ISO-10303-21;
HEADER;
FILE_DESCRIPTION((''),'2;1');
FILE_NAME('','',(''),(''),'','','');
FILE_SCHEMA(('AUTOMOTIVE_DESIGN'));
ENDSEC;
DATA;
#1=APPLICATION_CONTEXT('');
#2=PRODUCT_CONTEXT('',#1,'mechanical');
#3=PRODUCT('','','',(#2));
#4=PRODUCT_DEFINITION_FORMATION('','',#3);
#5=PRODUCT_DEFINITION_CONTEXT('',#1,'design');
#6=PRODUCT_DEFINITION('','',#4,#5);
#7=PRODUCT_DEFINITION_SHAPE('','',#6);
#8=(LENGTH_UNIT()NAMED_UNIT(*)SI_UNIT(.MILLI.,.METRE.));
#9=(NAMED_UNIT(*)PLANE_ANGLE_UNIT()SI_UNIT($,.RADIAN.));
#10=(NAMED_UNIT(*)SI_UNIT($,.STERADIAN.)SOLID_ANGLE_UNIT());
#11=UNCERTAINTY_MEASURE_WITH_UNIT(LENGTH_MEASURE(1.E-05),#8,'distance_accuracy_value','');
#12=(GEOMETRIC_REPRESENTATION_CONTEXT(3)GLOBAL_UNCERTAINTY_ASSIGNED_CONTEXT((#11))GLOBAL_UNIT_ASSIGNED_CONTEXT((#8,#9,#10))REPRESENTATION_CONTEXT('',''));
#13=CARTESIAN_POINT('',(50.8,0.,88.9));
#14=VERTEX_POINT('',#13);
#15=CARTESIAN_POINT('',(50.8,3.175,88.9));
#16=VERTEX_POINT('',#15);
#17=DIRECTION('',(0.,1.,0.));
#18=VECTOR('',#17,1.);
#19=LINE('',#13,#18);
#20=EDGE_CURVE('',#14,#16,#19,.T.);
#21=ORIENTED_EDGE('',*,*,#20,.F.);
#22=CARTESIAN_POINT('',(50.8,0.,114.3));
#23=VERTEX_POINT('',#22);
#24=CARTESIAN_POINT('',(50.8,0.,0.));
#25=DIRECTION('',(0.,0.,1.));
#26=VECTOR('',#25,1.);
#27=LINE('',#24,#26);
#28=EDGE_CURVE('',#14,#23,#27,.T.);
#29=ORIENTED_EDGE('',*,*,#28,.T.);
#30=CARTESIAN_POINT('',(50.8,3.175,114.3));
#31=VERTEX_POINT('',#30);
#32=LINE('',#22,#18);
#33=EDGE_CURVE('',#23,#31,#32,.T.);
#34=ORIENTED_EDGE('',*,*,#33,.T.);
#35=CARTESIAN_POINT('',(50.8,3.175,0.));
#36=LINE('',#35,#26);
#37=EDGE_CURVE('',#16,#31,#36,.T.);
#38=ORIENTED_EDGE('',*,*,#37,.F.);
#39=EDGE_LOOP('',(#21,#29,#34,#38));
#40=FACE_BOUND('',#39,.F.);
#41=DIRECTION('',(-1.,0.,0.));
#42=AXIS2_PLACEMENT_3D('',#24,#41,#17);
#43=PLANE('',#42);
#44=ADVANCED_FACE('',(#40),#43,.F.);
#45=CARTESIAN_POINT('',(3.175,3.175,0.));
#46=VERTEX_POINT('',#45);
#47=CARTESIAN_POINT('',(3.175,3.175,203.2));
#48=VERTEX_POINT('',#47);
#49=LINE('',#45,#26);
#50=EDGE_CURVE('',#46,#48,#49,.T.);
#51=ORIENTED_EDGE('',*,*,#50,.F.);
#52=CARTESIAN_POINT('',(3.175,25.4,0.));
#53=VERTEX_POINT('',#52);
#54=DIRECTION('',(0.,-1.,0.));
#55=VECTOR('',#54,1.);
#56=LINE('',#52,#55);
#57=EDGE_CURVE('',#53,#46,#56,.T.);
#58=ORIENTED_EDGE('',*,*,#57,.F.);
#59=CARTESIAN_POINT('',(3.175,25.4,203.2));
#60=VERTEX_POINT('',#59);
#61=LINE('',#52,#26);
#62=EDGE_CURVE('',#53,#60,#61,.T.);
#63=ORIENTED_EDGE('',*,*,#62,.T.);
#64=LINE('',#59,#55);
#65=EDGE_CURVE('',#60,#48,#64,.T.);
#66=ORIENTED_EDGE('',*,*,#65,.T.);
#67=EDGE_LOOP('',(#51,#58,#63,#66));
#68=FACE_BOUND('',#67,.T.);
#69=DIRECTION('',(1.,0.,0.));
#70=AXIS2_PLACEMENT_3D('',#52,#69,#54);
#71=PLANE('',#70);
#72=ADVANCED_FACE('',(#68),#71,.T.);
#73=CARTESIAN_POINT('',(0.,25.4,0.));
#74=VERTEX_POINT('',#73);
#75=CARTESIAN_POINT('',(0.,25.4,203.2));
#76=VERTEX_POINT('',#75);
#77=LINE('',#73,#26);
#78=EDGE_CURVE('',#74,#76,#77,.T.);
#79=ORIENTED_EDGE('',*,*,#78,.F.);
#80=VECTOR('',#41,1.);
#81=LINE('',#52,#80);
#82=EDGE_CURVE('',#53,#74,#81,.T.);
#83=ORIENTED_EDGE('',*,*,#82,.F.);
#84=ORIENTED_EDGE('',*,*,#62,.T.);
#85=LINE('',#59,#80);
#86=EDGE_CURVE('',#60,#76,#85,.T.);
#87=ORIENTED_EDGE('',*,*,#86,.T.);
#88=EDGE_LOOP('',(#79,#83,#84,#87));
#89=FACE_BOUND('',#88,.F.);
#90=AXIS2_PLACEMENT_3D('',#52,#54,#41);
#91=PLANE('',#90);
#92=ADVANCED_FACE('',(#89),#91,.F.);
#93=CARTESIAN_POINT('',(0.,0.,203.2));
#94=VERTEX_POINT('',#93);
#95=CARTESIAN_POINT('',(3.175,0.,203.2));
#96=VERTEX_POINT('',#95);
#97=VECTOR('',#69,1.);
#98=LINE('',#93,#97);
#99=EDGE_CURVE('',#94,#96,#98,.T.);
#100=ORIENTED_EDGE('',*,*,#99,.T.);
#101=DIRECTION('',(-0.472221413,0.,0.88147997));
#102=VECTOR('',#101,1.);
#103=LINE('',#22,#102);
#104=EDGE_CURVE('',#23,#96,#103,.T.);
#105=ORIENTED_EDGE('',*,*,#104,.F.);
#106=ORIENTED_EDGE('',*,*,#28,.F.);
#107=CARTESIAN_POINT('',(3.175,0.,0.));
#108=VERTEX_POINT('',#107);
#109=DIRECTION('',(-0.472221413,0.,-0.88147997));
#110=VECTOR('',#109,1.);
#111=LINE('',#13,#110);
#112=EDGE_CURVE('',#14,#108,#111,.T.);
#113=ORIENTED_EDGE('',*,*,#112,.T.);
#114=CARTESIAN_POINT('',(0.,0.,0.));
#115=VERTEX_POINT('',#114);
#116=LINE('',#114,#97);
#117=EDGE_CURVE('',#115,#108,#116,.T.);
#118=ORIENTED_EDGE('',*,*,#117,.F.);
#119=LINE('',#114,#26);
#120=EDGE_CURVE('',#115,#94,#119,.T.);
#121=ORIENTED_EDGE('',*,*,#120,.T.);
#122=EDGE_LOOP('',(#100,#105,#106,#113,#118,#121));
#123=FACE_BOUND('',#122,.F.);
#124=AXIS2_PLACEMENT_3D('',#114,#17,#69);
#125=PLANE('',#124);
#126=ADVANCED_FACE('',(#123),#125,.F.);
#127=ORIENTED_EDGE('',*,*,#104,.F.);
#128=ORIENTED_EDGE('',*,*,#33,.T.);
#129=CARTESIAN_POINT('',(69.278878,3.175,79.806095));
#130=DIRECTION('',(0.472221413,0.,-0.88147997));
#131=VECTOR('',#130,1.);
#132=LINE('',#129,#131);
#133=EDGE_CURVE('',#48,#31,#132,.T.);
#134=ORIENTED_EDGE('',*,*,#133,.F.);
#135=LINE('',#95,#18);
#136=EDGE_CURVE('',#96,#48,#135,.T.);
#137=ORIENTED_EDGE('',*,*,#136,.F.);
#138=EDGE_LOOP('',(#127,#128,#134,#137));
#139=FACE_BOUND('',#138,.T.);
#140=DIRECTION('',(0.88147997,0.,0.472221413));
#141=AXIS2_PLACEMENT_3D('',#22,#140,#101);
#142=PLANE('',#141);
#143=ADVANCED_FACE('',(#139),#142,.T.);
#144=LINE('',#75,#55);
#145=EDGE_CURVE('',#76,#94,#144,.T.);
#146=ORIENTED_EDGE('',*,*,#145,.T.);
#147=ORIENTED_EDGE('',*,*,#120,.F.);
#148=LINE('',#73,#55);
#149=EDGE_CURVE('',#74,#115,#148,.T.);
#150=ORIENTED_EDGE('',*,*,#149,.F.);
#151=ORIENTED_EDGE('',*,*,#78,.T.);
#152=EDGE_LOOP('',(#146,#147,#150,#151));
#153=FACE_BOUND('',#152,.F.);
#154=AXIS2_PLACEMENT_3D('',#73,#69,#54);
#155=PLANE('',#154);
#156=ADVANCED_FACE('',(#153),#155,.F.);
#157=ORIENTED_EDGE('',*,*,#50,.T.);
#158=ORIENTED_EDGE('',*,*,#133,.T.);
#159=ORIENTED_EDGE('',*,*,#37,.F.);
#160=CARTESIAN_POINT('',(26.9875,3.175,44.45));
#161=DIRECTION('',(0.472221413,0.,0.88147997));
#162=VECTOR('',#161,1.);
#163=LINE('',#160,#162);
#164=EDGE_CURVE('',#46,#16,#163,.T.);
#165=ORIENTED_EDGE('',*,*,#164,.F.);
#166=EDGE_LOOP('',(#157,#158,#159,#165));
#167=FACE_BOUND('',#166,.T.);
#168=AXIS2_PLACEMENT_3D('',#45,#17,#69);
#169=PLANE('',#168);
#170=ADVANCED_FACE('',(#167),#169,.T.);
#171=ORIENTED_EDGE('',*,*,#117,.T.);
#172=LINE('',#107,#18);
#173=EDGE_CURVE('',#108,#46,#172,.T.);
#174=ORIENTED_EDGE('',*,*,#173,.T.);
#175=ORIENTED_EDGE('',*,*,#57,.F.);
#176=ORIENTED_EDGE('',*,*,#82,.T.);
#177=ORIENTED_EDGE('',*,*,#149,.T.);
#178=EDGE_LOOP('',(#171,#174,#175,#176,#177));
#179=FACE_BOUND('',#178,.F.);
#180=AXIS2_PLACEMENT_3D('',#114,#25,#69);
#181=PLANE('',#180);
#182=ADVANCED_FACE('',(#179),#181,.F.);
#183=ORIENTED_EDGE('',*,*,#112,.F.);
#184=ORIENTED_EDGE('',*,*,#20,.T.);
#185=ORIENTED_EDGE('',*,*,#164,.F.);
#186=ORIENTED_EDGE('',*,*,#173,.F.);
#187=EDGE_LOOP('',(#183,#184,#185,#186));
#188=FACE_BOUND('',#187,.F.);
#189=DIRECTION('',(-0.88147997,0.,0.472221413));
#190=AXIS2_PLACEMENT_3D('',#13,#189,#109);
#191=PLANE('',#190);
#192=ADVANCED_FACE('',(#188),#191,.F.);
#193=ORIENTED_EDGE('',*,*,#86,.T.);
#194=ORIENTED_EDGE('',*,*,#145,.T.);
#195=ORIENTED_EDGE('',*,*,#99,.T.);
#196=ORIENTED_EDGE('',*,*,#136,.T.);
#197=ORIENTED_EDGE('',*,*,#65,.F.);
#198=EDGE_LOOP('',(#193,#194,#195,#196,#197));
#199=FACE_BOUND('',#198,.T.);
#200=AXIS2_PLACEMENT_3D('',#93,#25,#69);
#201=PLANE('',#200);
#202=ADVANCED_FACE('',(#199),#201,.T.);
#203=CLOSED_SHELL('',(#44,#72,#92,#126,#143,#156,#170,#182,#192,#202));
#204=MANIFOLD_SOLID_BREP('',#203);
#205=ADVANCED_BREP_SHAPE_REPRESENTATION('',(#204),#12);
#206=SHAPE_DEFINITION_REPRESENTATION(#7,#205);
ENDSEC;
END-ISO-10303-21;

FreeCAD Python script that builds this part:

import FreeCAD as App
import Part
import Sketcher
Q = App.Units.Quantity

doc = App.newDocument("Part")
params = doc.addObject("Spreadsheet::Sheet", "Params")
for row, (alias, value) in enumerate([
    ("sketch1_width", "2 in"),
    ("sketch1_height", "1 in"),
    ("sketch1_width2", "0.125 in"),
    ("pad1_length", "8 in"),
    ("sketch2_height", "3.5 in"),
    ("sketch2_width", "1.875 in"),
], start=1):
    params.set(f"A{row}", alias)
    params.set(f"B{row}", "=" + value)
    params.setAlias(f"B{row}", alias)

body = doc.addObject("PartDesign::Body", "Body")

sketch1 = body.newObject("Sketcher::SketchObject", "Sketch")
sketch1.AttachmentSupport = (doc.getObject("XY_Plane"), [""])
sketch1.MapMode = "FlatFace"
sketch1.addGeometry([
    Part.LineSegment(App.Vector(0, 25.4, 0), App.Vector(0, 0, 0)),
    Part.LineSegment(App.Vector(0, 0, 0), App.Vector(50.8, 0, 0)),
    Part.LineSegment(App.Vector(50.8, 0, 0), App.Vector(50.8, 3.2, 0)),
    Part.LineSegment(App.Vector(50.8, 3.2, 0), App.Vector(3.2, 3.2, 0)),
    Part.LineSegment(App.Vector(3.2, 3.2, 0), App.Vector(3.2, 25.4, 0)),
    Part.LineSegment(App.Vector(3.2, 25.4, 0), App.Vector(0, 25.4, 0)),
], False)
sketch1.addConstraint([
    Sketcher.Constraint("Coincident", 0, 2, 1, 1),
    Sketcher.Constraint("Coincident", 1, 2, 2, 1),
    Sketcher.Constraint("Coincident", 2, 2, 3, 1),
    Sketcher.Constraint("Coincident", 3, 2, 4, 1),
    Sketcher.Constraint("Coincident", 4, 2, 5, 1),
    Sketcher.Constraint("Coincident", 5, 2, 0, 1),
    Sketcher.Constraint("Vertical", 0),
    Sketcher.Constraint("Horizontal", 1),
    Sketcher.Constraint("Vertical", 2),
    Sketcher.Constraint("Horizontal", 3),
    Sketcher.Constraint("Vertical", 4),
    Sketcher.Constraint("Horizontal", 5),
    Sketcher.Constraint("Coincident", 0, 2, -1, 1),
    Sketcher.Constraint("Equal", 5, 2),
    Sketcher.Constraint("DistanceX", 1, 1, 1, 2, Q("2 in")),
    Sketcher.Constraint("DistanceY", 0, 2, 0, 1, Q("1 in")),
    Sketcher.Constraint("DistanceX", 5, 2, 5, 1, Q("0.125 in")),
])
sketch1.setExpression("Constraints[14]", "Params.sketch1_width")
sketch1.setExpression("Constraints[15]", "Params.sketch1_height")
sketch1.setExpression("Constraints[16]", "Params.sketch1_width2")
pad1 = body.newObject("PartDesign::Pad", "Pad")
pad1.Profile = sketch1
pad1.setExpression("Length", "Params.pad1_length")

sketch2 = body.newObject("Sketcher::SketchObject", "Sketch001")
sketch2.AttachmentSupport = (doc.getObject("XZ_Plane"), [""])
sketch2.MapMode = "FlatFace"
sketch2.addGeometry([
    Part.LineSegment(App.Vector(51, 114, 0), App.Vector(51, 203, 0)),
    Part.LineSegment(App.Vector(51, 203, 0), App.Vector(3, 203, 0)),
    Part.LineSegment(App.Vector(3, 203, 0), App.Vector(51, 114, 0)),
    Part.LineSegment(App.Vector(51, 0, 0), App.Vector(51, 89, 0)),
    Part.LineSegment(App.Vector(51, 89, 0), App.Vector(3, 0, 0)),
    Part.LineSegment(App.Vector(3, 0, 0), App.Vector(51, 0, 0)),
], False)
sketch2.addConstraint([
    Sketcher.Constraint("Coincident", 0, 2, 1, 1),
    Sketcher.Constraint("Coincident", 1, 2, 2, 1),
    Sketcher.Constraint("Coincident", 2, 2, 0, 1),
    Sketcher.Constraint("Coincident", 3, 2, 4, 1),
    Sketcher.Constraint("Coincident", 4, 2, 5, 1),
    Sketcher.Constraint("Coincident", 5, 2, 3, 1),
    Sketcher.Constraint("Vertical", 0),
    Sketcher.Constraint("Horizontal", 1),
    Sketcher.Constraint("Vertical", 3),
    Sketcher.Constraint("Horizontal", 5),
    Sketcher.Constraint("PointOnObject", 4, 2, -1),
    Sketcher.Constraint("Vertical", 2, 2, 3, 2),
    Sketcher.Constraint("Vertical", 1, 2, 4, 2),
    Sketcher.Constraint("Equal", 0, 3),
    Sketcher.Constraint("DistanceY", 0, 1, 0, 2, Q("3.5 in")),
    Sketcher.Constraint("DistanceY", 3, 2, 2, 2, Q("1 in")),
    Sketcher.Constraint("DistanceX", -1, 1, 0, 2, Q("2 in")),
    Sketcher.Constraint("DistanceX", 1, 2, 1, 1, Q("1.875 in")),
])
sketch2.setExpression("Constraints[14]", "Params.sketch2_height")
sketch2.setExpression("Constraints[17]", "Params.sketch2_width")
pocket1 = body.newObject("PartDesign::Pocket", "Pocket")
pocket1.Profile = sketch2
pocket1.Type = "ThroughAll"

doc.recompute()
